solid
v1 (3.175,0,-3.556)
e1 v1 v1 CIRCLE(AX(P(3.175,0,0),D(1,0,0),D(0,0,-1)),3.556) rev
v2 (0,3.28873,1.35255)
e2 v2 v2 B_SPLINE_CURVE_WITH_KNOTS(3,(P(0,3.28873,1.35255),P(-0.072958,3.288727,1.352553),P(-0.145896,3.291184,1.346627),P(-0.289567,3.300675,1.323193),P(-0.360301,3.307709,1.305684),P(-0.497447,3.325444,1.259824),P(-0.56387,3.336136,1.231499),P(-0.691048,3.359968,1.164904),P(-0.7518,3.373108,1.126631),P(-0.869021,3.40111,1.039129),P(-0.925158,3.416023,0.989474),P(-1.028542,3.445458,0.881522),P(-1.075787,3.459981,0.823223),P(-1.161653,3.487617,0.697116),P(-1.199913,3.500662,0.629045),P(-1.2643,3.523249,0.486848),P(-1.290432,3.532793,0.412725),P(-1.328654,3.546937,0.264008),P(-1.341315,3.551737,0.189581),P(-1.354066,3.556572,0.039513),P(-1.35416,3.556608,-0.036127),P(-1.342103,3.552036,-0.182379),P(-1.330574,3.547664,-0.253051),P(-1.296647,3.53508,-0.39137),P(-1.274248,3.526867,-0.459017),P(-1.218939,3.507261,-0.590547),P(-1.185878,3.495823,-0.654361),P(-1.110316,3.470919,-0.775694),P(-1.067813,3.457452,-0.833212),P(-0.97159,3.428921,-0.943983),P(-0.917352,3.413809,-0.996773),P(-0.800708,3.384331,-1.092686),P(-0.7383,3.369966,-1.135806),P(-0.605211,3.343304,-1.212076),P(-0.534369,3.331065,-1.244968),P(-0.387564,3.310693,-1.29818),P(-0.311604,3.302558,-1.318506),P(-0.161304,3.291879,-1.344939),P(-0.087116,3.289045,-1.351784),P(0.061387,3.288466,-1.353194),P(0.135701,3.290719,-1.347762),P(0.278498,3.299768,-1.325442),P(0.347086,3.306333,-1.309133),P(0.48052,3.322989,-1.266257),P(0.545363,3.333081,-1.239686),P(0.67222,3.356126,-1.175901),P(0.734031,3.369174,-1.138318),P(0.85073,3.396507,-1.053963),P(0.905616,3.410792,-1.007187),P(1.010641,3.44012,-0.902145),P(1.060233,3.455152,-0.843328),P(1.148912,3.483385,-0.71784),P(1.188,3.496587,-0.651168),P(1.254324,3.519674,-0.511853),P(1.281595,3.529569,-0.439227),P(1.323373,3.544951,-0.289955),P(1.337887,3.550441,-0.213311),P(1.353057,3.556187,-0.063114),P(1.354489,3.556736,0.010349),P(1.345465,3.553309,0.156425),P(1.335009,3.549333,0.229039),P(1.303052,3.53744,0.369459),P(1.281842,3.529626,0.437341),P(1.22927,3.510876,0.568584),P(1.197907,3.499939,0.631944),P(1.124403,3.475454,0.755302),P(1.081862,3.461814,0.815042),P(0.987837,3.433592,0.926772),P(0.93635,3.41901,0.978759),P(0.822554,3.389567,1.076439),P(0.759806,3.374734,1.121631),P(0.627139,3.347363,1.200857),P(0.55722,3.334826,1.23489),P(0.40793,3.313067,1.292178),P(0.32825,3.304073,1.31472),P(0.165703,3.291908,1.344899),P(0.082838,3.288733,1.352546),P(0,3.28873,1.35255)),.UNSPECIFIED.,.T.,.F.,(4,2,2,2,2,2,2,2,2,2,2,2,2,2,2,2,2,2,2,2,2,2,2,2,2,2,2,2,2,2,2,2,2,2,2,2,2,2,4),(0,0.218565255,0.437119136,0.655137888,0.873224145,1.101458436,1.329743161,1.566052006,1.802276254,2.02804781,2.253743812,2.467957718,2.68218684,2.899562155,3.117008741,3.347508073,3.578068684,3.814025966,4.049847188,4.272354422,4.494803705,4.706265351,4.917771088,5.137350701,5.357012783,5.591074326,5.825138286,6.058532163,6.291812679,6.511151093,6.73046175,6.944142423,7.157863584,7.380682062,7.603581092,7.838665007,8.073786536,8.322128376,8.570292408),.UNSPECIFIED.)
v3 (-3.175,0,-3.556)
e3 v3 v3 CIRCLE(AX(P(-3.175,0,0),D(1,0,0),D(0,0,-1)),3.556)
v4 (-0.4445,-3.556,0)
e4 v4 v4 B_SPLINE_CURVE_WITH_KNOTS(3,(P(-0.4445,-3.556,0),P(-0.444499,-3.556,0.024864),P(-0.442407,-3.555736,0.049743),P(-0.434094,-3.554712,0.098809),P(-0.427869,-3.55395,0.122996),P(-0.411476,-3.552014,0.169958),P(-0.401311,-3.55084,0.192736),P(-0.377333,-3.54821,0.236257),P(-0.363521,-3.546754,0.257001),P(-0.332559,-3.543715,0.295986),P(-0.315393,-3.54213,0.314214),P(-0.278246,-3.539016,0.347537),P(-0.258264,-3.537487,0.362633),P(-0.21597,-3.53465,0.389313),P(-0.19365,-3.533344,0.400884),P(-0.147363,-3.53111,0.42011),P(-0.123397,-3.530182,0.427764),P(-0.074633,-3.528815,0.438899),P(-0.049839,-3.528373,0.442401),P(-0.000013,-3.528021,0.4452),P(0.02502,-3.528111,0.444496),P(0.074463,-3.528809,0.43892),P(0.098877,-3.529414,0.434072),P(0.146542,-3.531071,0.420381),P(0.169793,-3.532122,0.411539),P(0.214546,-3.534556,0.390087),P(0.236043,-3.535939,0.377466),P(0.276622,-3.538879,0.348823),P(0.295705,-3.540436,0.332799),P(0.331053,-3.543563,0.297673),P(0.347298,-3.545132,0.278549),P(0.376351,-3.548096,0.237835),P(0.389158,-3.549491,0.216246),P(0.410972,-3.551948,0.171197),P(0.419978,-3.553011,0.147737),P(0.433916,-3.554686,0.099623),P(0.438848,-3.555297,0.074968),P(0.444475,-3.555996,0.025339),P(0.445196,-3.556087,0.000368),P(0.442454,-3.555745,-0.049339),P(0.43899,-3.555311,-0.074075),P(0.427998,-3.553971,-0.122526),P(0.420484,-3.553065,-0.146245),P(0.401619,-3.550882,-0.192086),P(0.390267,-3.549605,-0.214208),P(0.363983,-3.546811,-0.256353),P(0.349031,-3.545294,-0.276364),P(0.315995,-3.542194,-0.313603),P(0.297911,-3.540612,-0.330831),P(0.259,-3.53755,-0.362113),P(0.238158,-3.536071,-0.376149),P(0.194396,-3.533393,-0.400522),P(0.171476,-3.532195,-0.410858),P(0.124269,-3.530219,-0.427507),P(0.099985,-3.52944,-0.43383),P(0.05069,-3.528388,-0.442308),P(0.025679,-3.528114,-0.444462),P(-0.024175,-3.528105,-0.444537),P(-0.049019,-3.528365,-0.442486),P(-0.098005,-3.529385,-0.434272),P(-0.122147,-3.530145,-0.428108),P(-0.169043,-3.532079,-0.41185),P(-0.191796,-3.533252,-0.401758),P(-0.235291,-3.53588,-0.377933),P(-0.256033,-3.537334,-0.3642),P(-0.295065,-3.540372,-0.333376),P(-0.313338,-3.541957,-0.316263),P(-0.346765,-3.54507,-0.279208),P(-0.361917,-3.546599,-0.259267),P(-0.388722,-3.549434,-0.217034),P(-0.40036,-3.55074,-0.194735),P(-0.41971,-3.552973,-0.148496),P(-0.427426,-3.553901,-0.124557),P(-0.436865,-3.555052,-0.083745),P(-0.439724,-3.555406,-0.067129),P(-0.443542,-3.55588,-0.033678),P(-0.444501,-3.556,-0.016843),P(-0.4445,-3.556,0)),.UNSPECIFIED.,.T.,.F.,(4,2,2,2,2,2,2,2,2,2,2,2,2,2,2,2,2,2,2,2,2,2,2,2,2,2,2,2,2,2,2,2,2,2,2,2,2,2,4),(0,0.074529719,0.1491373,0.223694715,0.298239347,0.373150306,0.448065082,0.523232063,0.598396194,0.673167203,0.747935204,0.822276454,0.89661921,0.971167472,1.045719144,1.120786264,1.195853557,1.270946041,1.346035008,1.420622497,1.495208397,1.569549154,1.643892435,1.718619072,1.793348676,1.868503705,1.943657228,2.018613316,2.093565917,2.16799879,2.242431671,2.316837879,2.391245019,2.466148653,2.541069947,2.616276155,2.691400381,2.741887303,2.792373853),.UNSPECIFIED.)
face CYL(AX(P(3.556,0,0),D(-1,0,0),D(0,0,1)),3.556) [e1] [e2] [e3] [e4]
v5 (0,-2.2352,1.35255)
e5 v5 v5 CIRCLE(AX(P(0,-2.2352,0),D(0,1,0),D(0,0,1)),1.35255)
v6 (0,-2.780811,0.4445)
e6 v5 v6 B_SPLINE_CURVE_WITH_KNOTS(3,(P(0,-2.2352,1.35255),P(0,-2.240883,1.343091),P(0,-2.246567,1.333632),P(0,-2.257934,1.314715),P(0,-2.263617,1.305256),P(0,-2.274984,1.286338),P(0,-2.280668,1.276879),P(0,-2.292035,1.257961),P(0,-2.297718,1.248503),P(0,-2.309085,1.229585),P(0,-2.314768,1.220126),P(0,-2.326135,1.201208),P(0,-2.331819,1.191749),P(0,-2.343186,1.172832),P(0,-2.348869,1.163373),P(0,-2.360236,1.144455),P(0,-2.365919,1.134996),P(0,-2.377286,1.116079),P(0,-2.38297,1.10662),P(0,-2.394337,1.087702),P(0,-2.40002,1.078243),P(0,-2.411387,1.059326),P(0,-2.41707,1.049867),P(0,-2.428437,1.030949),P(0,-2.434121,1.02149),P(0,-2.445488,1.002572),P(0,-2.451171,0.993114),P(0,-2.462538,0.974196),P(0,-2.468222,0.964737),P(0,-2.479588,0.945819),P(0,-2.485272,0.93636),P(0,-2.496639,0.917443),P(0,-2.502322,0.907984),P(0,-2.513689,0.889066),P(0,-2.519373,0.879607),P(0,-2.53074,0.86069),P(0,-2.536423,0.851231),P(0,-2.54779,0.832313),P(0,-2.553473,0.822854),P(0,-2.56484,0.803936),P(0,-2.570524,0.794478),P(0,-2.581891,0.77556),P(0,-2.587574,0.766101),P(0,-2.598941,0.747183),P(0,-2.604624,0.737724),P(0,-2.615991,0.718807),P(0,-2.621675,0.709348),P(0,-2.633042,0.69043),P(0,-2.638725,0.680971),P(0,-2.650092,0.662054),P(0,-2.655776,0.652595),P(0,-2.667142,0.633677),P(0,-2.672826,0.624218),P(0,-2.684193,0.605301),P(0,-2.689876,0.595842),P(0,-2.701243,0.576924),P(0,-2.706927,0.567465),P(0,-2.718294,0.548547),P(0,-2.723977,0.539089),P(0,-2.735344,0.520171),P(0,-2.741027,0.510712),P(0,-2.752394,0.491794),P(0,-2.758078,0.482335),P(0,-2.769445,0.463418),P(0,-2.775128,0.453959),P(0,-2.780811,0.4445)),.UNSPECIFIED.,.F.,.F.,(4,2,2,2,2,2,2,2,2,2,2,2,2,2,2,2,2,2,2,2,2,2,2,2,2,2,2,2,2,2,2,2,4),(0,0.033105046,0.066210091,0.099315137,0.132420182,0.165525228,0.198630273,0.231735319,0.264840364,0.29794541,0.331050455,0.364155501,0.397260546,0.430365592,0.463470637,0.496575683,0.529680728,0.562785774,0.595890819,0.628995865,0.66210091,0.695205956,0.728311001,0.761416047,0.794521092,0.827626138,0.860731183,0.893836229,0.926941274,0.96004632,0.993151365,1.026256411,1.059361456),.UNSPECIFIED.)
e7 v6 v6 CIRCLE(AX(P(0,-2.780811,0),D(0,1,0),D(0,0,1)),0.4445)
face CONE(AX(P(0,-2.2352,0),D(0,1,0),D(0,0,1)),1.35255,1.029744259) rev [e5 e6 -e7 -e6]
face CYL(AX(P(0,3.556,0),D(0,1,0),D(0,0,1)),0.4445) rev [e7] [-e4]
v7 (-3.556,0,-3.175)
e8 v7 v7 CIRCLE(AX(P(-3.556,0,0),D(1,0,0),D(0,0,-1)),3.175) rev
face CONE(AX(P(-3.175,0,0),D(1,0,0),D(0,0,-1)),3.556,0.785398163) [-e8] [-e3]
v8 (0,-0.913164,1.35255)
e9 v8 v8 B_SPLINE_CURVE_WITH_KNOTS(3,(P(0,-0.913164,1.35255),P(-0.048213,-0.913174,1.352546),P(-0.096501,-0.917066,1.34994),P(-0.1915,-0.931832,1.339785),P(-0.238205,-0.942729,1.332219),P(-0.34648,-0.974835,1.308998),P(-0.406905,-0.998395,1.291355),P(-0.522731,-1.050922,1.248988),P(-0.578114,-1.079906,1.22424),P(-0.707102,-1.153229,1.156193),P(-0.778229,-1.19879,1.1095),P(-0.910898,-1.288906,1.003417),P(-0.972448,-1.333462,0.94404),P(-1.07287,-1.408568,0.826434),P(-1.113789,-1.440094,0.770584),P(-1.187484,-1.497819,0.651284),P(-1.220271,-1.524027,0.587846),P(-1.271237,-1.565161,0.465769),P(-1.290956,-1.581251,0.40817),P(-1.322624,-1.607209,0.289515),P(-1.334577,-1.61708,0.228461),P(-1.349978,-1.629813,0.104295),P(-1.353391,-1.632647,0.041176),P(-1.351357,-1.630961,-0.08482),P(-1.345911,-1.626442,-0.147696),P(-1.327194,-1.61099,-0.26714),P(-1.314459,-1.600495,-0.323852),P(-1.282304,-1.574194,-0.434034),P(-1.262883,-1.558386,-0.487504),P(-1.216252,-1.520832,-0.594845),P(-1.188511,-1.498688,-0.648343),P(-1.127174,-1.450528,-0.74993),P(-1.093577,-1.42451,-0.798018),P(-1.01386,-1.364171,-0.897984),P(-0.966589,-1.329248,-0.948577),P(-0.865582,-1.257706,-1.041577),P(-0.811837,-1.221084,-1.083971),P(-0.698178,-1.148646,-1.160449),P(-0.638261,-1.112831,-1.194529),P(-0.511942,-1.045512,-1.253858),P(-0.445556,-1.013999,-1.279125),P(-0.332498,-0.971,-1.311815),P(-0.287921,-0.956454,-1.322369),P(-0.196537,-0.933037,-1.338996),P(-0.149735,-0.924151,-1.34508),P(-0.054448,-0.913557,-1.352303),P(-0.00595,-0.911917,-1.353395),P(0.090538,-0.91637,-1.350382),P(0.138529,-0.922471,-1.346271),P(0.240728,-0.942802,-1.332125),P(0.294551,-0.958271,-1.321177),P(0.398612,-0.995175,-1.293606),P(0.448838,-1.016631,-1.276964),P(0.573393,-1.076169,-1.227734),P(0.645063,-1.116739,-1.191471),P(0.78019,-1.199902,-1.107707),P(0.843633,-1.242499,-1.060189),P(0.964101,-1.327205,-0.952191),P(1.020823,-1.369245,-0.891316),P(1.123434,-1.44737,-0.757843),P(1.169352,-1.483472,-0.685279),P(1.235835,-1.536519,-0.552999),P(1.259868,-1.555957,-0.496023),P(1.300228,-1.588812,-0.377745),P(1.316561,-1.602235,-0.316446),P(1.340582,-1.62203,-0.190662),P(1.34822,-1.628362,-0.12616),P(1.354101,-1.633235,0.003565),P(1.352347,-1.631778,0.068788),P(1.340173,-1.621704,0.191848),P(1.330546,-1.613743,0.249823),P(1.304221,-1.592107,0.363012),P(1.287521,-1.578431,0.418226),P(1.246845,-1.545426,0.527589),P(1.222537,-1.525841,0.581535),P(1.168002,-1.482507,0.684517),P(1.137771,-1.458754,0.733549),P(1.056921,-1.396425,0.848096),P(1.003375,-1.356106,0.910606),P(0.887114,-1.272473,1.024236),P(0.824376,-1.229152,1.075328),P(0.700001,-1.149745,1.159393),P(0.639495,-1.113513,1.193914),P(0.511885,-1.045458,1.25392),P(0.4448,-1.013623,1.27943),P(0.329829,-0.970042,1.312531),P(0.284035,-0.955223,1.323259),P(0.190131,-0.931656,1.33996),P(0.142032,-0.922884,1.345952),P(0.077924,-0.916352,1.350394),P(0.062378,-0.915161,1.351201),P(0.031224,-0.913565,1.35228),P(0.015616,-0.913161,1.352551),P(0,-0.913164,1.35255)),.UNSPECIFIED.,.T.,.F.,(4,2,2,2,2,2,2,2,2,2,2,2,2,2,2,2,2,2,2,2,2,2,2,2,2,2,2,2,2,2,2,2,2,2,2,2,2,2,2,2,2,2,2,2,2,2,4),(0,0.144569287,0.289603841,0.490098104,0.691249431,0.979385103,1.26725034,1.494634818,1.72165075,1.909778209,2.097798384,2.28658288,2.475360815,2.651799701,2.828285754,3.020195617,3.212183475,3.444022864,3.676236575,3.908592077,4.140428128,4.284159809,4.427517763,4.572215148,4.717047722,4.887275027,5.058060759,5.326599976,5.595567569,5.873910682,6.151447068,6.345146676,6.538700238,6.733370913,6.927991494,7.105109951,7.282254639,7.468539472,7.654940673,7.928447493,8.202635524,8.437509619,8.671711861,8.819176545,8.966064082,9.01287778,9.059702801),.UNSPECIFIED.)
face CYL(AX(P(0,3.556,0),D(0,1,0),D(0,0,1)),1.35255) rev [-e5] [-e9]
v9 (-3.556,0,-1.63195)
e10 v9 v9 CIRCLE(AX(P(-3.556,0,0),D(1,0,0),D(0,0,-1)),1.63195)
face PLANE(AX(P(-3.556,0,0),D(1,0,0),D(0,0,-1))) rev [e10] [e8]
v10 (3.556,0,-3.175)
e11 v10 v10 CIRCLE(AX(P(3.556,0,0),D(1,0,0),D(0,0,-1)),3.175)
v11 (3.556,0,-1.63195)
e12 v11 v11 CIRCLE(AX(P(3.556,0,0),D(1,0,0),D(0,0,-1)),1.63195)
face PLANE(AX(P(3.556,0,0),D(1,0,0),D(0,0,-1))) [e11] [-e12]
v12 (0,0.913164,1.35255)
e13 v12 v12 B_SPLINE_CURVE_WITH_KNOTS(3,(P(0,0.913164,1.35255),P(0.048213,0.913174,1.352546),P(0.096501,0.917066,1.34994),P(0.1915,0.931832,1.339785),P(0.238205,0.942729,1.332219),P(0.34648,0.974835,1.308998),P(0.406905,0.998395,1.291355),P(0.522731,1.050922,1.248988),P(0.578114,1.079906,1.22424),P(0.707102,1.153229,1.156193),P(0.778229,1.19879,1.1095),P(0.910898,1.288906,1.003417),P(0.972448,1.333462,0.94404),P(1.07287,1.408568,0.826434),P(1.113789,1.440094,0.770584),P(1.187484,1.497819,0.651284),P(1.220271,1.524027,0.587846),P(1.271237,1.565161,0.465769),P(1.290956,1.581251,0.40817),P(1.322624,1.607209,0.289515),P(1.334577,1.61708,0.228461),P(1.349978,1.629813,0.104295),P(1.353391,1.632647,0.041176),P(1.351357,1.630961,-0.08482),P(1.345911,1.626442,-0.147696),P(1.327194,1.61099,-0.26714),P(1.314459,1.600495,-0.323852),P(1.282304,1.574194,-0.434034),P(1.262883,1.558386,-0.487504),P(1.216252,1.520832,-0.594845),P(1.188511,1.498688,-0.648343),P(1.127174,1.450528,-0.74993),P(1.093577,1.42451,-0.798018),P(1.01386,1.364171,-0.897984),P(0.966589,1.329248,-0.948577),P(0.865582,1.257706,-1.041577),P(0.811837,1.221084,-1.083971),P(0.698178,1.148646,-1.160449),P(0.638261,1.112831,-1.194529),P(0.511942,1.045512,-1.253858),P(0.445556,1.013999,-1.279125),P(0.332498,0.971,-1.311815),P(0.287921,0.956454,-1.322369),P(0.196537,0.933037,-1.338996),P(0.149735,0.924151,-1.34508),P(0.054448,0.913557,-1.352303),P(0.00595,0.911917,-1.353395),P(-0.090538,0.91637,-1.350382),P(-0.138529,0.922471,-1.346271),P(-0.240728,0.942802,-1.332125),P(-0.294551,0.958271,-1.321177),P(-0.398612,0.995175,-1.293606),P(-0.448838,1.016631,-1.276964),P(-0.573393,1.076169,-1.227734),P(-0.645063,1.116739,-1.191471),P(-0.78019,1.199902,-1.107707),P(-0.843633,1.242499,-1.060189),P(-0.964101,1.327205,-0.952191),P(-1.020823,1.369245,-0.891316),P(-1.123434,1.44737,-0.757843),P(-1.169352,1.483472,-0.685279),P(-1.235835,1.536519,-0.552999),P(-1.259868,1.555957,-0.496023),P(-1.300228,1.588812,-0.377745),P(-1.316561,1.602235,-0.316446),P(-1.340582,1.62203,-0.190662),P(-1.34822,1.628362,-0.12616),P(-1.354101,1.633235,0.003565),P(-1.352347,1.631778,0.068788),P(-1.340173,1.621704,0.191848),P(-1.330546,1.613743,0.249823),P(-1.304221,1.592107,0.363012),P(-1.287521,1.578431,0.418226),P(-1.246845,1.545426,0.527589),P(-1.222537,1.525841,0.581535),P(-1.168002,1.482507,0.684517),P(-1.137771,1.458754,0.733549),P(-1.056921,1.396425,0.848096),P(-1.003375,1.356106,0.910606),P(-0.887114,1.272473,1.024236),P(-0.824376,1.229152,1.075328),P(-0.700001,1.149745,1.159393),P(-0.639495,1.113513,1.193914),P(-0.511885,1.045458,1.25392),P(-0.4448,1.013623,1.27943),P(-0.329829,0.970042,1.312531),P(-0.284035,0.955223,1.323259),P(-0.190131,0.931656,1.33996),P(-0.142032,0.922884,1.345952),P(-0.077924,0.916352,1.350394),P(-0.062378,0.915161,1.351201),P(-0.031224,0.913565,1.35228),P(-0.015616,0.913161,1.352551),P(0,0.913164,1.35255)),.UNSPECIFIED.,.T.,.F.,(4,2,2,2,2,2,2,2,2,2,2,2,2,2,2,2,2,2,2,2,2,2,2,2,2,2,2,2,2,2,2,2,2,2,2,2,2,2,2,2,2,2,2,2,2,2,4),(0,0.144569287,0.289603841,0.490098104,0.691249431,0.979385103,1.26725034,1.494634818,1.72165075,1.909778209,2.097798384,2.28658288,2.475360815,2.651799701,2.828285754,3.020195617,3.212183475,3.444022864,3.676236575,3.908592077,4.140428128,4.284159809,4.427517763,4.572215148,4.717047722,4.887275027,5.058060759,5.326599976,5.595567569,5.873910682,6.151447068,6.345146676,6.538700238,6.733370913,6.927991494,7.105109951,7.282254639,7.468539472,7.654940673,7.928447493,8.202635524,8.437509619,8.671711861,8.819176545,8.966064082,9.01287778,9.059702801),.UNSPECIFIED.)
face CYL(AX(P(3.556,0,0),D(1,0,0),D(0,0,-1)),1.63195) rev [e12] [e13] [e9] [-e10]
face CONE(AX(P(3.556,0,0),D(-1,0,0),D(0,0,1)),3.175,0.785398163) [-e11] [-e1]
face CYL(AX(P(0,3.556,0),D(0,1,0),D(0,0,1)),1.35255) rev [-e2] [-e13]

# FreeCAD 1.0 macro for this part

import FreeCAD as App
import Part
import Sketcher
from FreeCAD import Vector
Q = App.Units.Quantity


def edges_at(feature, points):
    """Names of the edges that pass closest to the given points."""
    edges = feature.Shape.Edges
    near = lambda p: min(range(len(edges)), key=lambda i: edges[i].distToShape(Part.Vertex(*p))[0])
    return sorted({f"Edge{near(p) + 1}" for p in points})

doc = App.newDocument("Part")
body = doc.addObject("PartDesign::Body", "Body")

sketch1 = doc.addObject("Sketcher::SketchObject", "Sketch")
body.addObject(sketch1)
sketch1.AttachmentSupport = (doc.YZ_Plane, [""])
sketch1.MapMode = "FlatFace"
sketch1.addGeometry(Part.Circle(Vector(0, 0, 0), Vector(0, 0, 1), 3.6), False)
sketch1.addConstraint(Sketcher.Constraint("Coincident", 0, 3, -1, 1))
sketch1.addConstraint(Sketcher.Constraint("Diameter", 0, Q("0.28 in")))
pad1 = doc.addObject("PartDesign::Pad", "Pad")
body.addObject(pad1)
pad1.Profile = sketch1
pad1.Length = Q("0.28 in")
pad1.Midplane = True

sketch2 = doc.addObject("Sketcher::SketchObject", "Sketch001")
body.addObject(sketch2)
sketch2.AttachmentSupport = (doc.YZ_Plane, [""])
sketch2.MapMode = "FlatFace"
sketch2.AttachmentOffset = App.Placement(Vector(0, 0, 0.14 * 25.4), App.Rotation())
sketch2.addGeometry(Part.Circle(Vector(0, 0, 0), Vector(0, 0, 1), 1.6), False)
sketch2.addConstraint(Sketcher.Constraint("Coincident", 0, 3, -1, 1))
sketch2.addConstraint(Sketcher.Constraint("Diameter", 0, Q("0.1285 in")))
doc.recompute()
hole = doc.addObject("PartDesign::Hole", "Hole")
body.addObject(hole)
hole.Profile = sketch2
hole.ThreadType = "None"
hole.Diameter = Q("0.1285 in")
hole.DepthType = "ThroughAll"
doc.recompute()

chamfer = doc.addObject("PartDesign::Chamfer", "Chamfer")
body.addObject(chamfer)
chamfer.Base = (hole, edges_at(hole, [(-3.556, 0, 3.556), (3.556, 0, 3.556)]))
chamfer.Size = Q("0.015 in")

sketch3 = doc.addObject("Sketcher::SketchObject", "Sketch002")
body.addObject(sketch3)
sketch3.AttachmentSupport = (doc.XZ_Plane, [""])
sketch3.MapMode = "FlatFace"
sketch3.AttachmentOffset = App.Placement(Vector(0, 0, -0.14 * 25.4), App.Rotation())
sketch3.addGeometry(Part.Circle(Vector(0, 0, 0), Vector(0, 0, 1), 0.44), False)
sketch3.addConstraint(Sketcher.Constraint("Coincident", 0, 3, -1, 1))
sketch3.addConstraint(Sketcher.Constraint("Diameter", 0, Q("0.035 in")))
doc.recompute()
hole2 = doc.addObject("PartDesign::Hole", "Hole001")
body.addObject(hole2)
hole2.Profile = sketch3
hole2.ThreadType = "None"
hole2.Diameter = Q("0.035 in")
hole2.DepthType = "ThroughAll"
hole2.Reversed = True

sketch4 = doc.addObject("Sketcher::SketchObject", "Sketch003")
body.addObject(sketch4)
sketch4.AttachmentSupport = (doc.XZ_Plane, [""])
sketch4.MapMode = "FlatFace"
sketch4.AttachmentOffset = App.Placement(Vector(0, 0, -0.14 * 25.4), App.Rotation())
sketch4.addGeometry(Part.Circle(Vector(0, 0, 0), Vector(0, 0, 1), 1.4), False)
sketch4.addConstraint(Sketcher.Constraint("Coincident", 0, 3, -1, 1))
sketch4.addConstraint(Sketcher.Constraint("Diameter", 0, Q("0.1065 in")))
doc.recompute()
hole3 = doc.addObject("PartDesign::Hole", "Hole002")
body.addObject(hole3)
hole3.Profile = sketch4
hole3.ThreadType = "None"
hole3.Diameter = Q("0.1065 in")
hole3.DepthType = "Dimension"
hole3.Depth = Q("0.228 in")
hole3.DrillPoint = "Angled"
hole3.DrillPointAngle = 118
hole3.Reversed = True

doc.recompute()
